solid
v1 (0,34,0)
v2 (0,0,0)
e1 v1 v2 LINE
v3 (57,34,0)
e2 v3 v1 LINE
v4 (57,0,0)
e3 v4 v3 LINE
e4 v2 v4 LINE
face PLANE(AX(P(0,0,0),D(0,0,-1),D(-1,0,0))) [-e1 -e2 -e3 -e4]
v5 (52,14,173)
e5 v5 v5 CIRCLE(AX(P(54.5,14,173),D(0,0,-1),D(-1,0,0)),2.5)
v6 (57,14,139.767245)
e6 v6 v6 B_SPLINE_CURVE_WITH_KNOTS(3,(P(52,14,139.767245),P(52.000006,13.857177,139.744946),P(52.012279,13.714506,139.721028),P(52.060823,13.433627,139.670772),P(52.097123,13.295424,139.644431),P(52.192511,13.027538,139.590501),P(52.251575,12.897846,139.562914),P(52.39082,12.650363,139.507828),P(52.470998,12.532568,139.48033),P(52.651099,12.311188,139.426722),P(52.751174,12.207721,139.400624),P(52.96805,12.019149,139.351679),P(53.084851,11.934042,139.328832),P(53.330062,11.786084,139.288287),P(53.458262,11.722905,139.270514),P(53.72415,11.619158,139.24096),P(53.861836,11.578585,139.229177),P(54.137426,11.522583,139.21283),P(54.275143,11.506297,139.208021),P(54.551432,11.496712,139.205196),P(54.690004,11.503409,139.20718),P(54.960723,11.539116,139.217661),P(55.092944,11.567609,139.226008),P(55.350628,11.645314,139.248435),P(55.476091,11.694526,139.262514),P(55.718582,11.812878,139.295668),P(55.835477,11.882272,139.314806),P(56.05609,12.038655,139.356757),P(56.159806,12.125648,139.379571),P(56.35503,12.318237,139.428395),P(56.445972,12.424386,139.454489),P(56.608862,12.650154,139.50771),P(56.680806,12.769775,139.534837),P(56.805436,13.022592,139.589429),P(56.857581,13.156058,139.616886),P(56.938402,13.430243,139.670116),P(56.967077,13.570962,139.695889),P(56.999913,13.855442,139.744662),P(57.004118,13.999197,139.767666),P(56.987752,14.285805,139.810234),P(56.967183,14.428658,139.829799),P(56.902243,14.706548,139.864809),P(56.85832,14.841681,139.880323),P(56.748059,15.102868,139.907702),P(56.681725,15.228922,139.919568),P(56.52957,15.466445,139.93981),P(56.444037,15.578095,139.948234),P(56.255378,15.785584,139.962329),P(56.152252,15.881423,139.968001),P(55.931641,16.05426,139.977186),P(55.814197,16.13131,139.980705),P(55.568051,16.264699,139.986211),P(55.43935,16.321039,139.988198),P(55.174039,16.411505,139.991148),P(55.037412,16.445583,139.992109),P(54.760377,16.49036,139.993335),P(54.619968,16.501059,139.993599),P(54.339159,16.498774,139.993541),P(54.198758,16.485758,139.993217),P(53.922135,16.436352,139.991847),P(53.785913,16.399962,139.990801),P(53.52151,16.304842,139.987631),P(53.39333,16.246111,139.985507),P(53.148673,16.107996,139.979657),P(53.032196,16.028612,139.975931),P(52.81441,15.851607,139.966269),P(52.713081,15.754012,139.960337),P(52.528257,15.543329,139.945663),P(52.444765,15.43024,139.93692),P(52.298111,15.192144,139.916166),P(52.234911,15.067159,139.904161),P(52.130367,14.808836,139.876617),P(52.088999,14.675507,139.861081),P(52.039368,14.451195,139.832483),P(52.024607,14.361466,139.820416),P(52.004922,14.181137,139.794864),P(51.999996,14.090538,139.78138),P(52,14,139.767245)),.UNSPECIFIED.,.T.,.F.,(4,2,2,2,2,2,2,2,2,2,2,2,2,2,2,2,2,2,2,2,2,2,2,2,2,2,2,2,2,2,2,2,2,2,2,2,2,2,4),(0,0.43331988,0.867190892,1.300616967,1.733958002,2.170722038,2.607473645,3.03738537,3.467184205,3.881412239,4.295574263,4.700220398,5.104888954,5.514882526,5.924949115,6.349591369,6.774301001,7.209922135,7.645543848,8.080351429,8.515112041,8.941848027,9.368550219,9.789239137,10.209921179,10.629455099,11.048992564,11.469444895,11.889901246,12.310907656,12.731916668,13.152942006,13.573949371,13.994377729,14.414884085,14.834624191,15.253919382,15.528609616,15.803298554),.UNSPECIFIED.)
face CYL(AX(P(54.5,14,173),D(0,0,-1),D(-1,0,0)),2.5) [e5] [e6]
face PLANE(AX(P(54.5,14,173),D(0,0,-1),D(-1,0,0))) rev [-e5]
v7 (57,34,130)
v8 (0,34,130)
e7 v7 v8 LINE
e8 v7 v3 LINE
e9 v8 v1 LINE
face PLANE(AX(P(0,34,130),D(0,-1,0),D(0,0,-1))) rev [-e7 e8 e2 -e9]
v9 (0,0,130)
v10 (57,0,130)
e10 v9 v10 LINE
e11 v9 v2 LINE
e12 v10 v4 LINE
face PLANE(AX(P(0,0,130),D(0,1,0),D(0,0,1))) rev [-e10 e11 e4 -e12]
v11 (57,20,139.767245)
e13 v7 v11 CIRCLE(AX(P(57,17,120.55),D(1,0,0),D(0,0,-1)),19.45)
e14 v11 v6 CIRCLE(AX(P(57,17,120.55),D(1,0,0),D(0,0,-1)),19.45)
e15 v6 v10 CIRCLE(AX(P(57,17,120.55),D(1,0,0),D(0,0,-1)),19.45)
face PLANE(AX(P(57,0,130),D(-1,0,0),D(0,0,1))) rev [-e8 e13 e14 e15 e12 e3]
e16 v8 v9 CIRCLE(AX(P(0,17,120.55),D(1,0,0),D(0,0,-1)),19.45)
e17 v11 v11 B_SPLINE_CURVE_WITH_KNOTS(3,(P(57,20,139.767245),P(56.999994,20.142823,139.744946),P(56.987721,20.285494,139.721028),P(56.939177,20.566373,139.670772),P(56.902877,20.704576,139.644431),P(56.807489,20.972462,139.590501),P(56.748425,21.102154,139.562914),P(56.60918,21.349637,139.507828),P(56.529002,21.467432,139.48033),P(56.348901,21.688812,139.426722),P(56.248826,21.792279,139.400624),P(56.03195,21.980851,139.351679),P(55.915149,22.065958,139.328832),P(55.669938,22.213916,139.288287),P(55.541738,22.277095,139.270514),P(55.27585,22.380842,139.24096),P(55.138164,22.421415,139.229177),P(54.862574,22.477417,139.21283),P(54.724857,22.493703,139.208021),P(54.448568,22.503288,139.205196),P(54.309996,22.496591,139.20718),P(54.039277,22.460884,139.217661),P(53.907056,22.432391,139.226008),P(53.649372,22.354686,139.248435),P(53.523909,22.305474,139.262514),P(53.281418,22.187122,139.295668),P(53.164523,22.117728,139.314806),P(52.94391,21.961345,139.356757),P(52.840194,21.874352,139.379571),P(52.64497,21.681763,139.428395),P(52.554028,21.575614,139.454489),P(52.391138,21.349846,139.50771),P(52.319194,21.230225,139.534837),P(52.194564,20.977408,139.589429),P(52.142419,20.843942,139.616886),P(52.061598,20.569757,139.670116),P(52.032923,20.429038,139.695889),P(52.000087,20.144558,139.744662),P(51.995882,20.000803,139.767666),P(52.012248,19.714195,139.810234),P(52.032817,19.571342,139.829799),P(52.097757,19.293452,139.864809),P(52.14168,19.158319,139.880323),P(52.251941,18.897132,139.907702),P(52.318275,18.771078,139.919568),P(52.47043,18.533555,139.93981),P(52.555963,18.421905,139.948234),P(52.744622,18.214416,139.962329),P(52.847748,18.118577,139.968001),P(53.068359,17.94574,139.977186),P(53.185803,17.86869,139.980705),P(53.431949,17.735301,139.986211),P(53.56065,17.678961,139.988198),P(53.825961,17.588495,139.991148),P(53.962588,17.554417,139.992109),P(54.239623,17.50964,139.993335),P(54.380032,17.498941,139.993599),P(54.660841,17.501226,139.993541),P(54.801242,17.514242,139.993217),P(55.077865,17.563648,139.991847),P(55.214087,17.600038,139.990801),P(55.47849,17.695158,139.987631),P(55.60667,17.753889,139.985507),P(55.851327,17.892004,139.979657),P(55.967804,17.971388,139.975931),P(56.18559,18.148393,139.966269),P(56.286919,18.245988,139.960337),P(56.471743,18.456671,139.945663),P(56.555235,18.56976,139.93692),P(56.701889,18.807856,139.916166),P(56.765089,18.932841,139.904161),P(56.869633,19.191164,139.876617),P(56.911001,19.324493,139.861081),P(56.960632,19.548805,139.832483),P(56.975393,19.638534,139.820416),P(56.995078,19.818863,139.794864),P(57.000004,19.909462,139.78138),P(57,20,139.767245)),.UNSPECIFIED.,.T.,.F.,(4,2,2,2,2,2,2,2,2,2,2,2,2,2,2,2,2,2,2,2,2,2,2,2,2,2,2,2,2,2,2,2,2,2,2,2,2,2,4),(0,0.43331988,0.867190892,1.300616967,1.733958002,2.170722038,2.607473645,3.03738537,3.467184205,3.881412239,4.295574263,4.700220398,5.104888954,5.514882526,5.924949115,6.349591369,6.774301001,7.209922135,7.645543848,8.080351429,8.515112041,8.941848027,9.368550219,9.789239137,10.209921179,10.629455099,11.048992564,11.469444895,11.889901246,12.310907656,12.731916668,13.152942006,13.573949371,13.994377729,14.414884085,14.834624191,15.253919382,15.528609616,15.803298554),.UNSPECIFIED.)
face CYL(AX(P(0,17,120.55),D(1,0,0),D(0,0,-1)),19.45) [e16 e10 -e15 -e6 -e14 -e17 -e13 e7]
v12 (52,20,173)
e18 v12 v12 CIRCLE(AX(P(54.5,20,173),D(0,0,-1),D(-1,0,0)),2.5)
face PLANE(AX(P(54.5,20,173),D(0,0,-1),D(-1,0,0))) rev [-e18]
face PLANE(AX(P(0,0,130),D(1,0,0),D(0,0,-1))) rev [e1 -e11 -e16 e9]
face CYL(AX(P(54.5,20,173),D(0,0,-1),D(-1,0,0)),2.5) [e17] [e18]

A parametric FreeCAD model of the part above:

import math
import FreeCAD as App
import Part
import Sketcher
Q = App.Units.Quantity


def add_polygon(sketch, points):
    """Adds a closed chain of lines whose ends are joined by coincident constraints."""
    first, n = sketch.GeometryCount, len(points)
    for a, b in zip(points, points[1:] + points[:1]):
        sketch.addGeometry(Part.LineSegment(App.Vector(*a, 0), App.Vector(*b, 0)), False)
    for i in range(n):
        sketch.addConstraint(Sketcher.Constraint("Coincident", first + i, 2, first + (i + 1) % n, 1))

doc = App.newDocument("Part")
body = doc.addObject("PartDesign::Body", "Body")

# Sketch on XY plane
sketch1 = body.newObject("Sketcher::SketchObject", "Sketch")
sketch1.AttachmentSupport = (doc.getObject("XY_Plane"), [""])
sketch1.MapMode = "FlatFace"
add_polygon(sketch1, [(0, 34), (0, 0), (57, 0), (57, 34)])  # lines 0-3
sketch1.addConstraint([
    Sketcher.Constraint("Vertical", 0),
    Sketcher.Constraint("Horizontal", 1),
    Sketcher.Constraint("Vertical", 2),
    Sketcher.Constraint("Horizontal", 3),
    Sketcher.Constraint("Coincident", 0, 2, -1, 1),
    Sketcher.Constraint("DistanceX", 1, 1, 1, 2, Q("57 mm")),
    Sketcher.Constraint("DistanceY", 0, 2, 0, 1, Q("34 mm")),
])
pad1 = body.newObject("PartDesign::Pad", "Pad")
pad1.Profile = sketch1
pad1.Length = 130

# Sketch on YZ plane
sketch2 = body.newObject("Sketcher::SketchObject", "Sketch001")
sketch2.AttachmentSupport = (doc.getObject("YZ_Plane"), [""])
sketch2.MapMode = "FlatFace"
sketch2.AttachmentOffset = App.Placement(App.Vector(0, 0, 57), App.Rotation())
sketch2.addGeometry([
    Part.LineSegment(App.Vector(0, 130, 0), App.Vector(34, 130, 0)),
    Part.ArcOfCircle(Part.Circle(App.Vector(17, 121, 0), App.Vector(0, 0, 1), 19), math.radians(29), math.radians(151)),
], False)
sketch2.addConstraint([
    Sketcher.Constraint("Coincident", 0, 1, 1, 2),
    Sketcher.Constraint("Coincident", 1, 1, 0, 2),
    Sketcher.Constraint("Horizontal", 0),
    Sketcher.Constraint("PointOnObject", 0, 1, -2),
    Sketcher.Constraint("DistanceX", 0, 1, 0, 2, Q("34 mm")),
    Sketcher.Constraint("Radius", 1, Q("19.45 mm")),
    Sketcher.Constraint("DistanceY", -1, 1, 0, 1, Q("130 mm")),
])
pad2 = body.newObject("PartDesign::Pad", "Pad001")
pad2.Profile = sketch2
pad2.Length = 57
pad2.Reversed = True

# Sketch on XY plane
sketch3 = body.newObject("Sketcher::SketchObject", "Sketch002")
sketch3.AttachmentSupport = (doc.getObject("XY_Plane"), [""])
sketch3.MapMode = "FlatFace"
sketch3.addGeometry([
    Part.Circle(App.Vector(54.5, 20, 0), App.Vector(0, 0, 1), 2.5),
    Part.Circle(App.Vector(54.5, 14, 0), App.Vector(0, 0, 1), 2.5),
], False)
sketch3.addConstraint([
    Sketcher.Constraint("Equal", 0, 1),
    Sketcher.Constraint("Vertical", 0, 3, 1, 3),
    Sketcher.Constraint("Diameter", 0, Q("5 mm")),
    Sketcher.Constraint("DistanceY", -1, 1, 0, 3, Q("20 mm")),
    Sketcher.Constraint("DistanceY", -1, 1, 1, 3, Q("14 mm")),
    Sketcher.Constraint("DistanceX", -1, 1, 0, 3, Q("54.5 mm")),
])
pad3 = body.newObject("PartDesign::Pad", "Pad002")
pad3.Profile = sketch3
pad3.Length = 173

doc.recompute()
